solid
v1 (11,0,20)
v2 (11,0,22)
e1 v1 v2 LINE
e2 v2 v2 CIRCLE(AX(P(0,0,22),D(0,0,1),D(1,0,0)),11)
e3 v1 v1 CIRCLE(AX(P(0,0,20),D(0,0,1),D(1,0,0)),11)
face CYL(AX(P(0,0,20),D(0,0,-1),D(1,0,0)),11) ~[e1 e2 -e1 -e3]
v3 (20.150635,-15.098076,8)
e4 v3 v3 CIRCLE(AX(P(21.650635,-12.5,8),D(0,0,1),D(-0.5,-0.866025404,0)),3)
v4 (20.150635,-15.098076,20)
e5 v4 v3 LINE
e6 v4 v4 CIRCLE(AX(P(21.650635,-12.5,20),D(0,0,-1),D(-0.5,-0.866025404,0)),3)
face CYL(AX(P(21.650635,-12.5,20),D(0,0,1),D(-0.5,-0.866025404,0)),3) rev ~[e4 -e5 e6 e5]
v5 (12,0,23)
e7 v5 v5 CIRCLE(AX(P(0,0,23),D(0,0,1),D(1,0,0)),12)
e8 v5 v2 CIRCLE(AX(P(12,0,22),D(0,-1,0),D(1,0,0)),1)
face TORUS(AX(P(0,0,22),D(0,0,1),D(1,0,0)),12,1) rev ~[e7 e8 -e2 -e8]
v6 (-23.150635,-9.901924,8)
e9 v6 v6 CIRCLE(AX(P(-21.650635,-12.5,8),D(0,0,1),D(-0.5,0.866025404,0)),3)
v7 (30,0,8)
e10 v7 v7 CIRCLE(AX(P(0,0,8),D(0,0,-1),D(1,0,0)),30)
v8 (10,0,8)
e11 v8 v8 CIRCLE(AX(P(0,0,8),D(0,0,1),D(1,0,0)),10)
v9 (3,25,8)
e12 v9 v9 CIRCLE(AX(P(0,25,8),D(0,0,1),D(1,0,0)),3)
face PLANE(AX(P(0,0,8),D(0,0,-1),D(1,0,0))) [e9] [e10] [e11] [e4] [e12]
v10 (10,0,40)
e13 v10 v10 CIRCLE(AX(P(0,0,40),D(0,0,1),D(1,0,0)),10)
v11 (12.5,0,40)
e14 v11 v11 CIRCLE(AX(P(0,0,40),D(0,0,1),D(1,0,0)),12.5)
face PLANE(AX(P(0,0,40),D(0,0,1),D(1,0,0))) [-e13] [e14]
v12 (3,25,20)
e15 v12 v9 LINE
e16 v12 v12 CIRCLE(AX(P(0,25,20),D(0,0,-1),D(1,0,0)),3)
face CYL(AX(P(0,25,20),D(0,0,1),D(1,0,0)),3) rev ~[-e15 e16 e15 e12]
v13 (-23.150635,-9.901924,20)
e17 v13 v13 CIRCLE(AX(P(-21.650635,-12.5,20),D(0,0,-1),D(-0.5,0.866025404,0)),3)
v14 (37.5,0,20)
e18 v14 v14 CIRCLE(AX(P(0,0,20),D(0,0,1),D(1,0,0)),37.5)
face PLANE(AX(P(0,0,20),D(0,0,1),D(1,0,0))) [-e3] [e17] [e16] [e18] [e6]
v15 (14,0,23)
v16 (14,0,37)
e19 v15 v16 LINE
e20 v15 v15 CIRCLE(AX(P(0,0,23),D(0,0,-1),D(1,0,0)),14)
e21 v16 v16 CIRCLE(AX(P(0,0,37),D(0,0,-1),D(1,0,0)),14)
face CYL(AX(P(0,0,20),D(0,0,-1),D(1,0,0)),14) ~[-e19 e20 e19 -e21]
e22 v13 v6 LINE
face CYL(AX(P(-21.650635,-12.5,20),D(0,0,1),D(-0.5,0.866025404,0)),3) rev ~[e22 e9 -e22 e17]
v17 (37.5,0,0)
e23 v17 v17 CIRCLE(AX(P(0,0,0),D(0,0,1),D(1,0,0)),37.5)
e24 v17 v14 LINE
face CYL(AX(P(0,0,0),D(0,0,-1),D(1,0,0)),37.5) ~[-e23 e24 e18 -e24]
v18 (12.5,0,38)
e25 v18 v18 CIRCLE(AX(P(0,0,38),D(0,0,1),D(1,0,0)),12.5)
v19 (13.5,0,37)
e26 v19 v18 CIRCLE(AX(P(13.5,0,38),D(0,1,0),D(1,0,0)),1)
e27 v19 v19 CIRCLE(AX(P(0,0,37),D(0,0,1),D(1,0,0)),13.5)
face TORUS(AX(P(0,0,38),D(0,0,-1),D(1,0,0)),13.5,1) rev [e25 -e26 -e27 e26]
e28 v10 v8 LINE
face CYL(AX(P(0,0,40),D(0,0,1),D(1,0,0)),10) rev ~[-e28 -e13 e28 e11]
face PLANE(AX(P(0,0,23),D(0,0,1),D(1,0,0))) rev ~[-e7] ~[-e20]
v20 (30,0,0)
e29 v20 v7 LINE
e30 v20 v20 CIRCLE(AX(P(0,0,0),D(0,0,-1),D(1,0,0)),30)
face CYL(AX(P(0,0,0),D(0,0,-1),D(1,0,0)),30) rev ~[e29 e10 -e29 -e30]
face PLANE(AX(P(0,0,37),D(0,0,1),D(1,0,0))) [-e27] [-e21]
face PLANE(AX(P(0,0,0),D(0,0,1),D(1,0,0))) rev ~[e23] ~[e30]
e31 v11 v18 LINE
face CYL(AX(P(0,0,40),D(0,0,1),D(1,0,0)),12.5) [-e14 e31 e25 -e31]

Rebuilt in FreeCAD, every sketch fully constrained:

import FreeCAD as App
import Part
import Sketcher


def edges_at(feature, points):
    """Names of the edges that pass closest to the given points."""
    edges = feature.Shape.Edges
    near = lambda p: min(range(len(edges)), key=lambda i: edges[i].distToShape(Part.Vertex(*p))[0])
    return sorted({f"Edge{near(p) + 1}" for p in points})

doc = App.newDocument("Part")
params = doc.addObject("Spreadsheet::Sheet", "Params")
for row, (alias, value) in enumerate([
    ("sketch1_diameter", "22 mm"),
    ("pad1_length", "3 mm"),
    ("sketch2_diameter", "75 mm"),
    ("pad2_length", "20 mm"),
    ("sketch3_diameter", "60 mm"),
    ("pocket1_length", "8 mm"),
    ("sketch4_diameter", "6 mm"),
    ("sketch5_diameter", "28 mm"),
    ("pad3_length", "20 mm"),
    ("sketch6_diameter", "20 mm"),
    ("sketch7_diameter", "25 mm"),
    ("pocket4_length", "3 mm"),
    ("fillet_radius", "1 mm"),
    ("fillet2_radius", "1 mm"),
], start=1):
    params.set(f"A{row}", alias)
    params.set(f"B{row}", "=" + value)
    params.setAlias(f"B{row}", alias)

body = doc.addObject("PartDesign::Body", "Body")

sketch1 = body.newObject("Sketcher::SketchObject", "Sketch")
sketch1.AttachmentSupport = (doc.getObject("XY_Plane"), [""])
sketch1.MapMode = "FlatFace"
sketch1.AttachmentOffset = App.Placement(App.Vector(0, 0, 20), App.Rotation())
sketch1.addGeometry([
    Part.Circle(App.Vector(0, 0, 0), App.Vector(0, 0, 1), 24),
    Part.Circle(App.Vector(0, 0, 0), App.Vector(0, 0, 1), 11),
], False)
sketch1.addConstraint([
    Sketcher.Constraint("Coincident", 0, 3, -1, 1),
    Sketcher.Constraint("Coincident", 1, 3, -1, 1),
    Sketcher.Constraint("Diameter", 1, 22.0),
    Sketcher.Constraint("Diameter", 0, 48.83324),
])
sketch1.setExpression("Constraints[2]", "Params.sketch1_diameter")
pad1 = body.newObject("PartDesign::Pad", "Pad")
pad1.Profile = sketch1
pad1.setExpression("Length", "Params.pad1_length")
body2 = doc.addObject("PartDesign::Body", "Body001")

sketch2 = body2.newObject("Sketcher::SketchObject", "Sketch001")
sketch2.AttachmentSupport = (doc.getObject("XY_Plane001"), [""])
sketch2.MapMode = "FlatFace"
sketch2.addGeometry(Part.Circle(App.Vector(0, 0, 0), App.Vector(0, 0, 1), 38), False)
sketch2.addConstraint([
    Sketcher.Constraint("Coincident", 0, 3, -1, 1),
    Sketcher.Constraint("Diameter", 0, 75.0),
])
sketch2.setExpression("Constraints[1]", "Params.sketch2_diameter")
pad2 = body2.newObject("PartDesign::Pad", "Pad001")
pad2.Profile = sketch2
pad2.setExpression("Length", "Params.pad2_length")

sketch3 = body2.newObject("Sketcher::SketchObject", "Sketch002")
sketch3.AttachmentSupport = (doc.getObject("XY_Plane001"), [""])
sketch3.MapMode = "FlatFace"
sketch3.addGeometry(Part.Circle(App.Vector(0, 0, 0), App.Vector(0, 0, 1), 30), False)
sketch3.addConstraint([
    Sketcher.Constraint("Coincident", 0, 3, -1, 1),
    Sketcher.Constraint("Diameter", 0, 60.0),
])
sketch3.setExpression("Constraints[1]", "Params.sketch3_diameter")
pocket1 = body2.newObject("PartDesign::Pocket", "Pocket")
pocket1.Profile = sketch3
pocket1.setExpression("Length", "Params.pocket1_length")
pocket1.Reversed = True

sketch4 = body2.newObject("Sketcher::SketchObject", "Sketch003")
sketch4.AttachmentSupport = (doc.getObject("XY_Plane001"), [""])
sketch4.MapMode = "FlatFace"
sketch4.AttachmentOffset = App.Placement(App.Vector(0, 0, 20), App.Rotation())
sketch4.addGeometry(Part.Circle(App.Vector(0, 25, 0), App.Vector(0, 0, 1), 3), False)
sketch4.addConstraint([
    Sketcher.Constraint("PointOnObject", 0, 3, -2),
    Sketcher.Constraint("Diameter", 0, 6.0),
    Sketcher.Constraint("DistanceY", -1, 1, 0, 3, 25.0),
])
sketch4.setExpression("Constraints[1]", "Params.sketch4_diameter")
pocket2 = body2.newObject("PartDesign::Pocket", "Pocket001")
pocket2.Profile = sketch4
pocket2.Type = "ThroughAll"
doc.recompute()

polarpattern = body2.newObject("PartDesign::PolarPattern", "PolarPattern")
polarpattern.Originals = [pocket2]
polarpattern.Axis = (doc.getObject("Z_Axis001"), [""])
polarpattern.Angle = 360
polarpattern.Occurrences = 3
body2.Tip = polarpattern

sketch5 = body2.newObject("Sketcher::SketchObject", "Sketch004")
sketch5.AttachmentSupport = (doc.getObject("XY_Plane001"), [""])
sketch5.MapMode = "FlatFace"
sketch5.AttachmentOffset = App.Placement(App.Vector(0, 0, 20), App.Rotation())
sketch5.addGeometry(Part.Circle(App.Vector(0, 0, 0), App.Vector(0, 0, 1), 14), False)
sketch5.addConstraint([
    Sketcher.Constraint("Coincident", 0, 3, -1, 1),
    Sketcher.Constraint("Diameter", 0, 28.0),
])
sketch5.setExpression("Constraints[1]", "Params.sketch5_diameter")
pad3 = body2.newObject("PartDesign::Pad", "Pad002")
pad3.Profile = sketch5
pad3.setExpression("Length", "Params.pad3_length")
doc.recompute()

boolean = body2.newObject("PartDesign::Boolean", "Boolean")
boolean.Type = "Cut"
boolean.addObjects([body])

sketch6 = body2.newObject("Sketcher::SketchObject", "Sketch005")
sketch6.AttachmentSupport = (doc.getObject("XY_Plane001"), [""])
sketch6.MapMode = "FlatFace"
sketch6.AttachmentOffset = App.Placement(App.Vector(0, 0, 40), App.Rotation())
sketch6.addGeometry(Part.Circle(App.Vector(0, 0, 0), App.Vector(0, 0, 1), 10), False)
sketch6.addConstraint([
    Sketcher.Constraint("Coincident", 0, 3, -1, 1),
    Sketcher.Constraint("Diameter", 0, 20.0),
])
sketch6.setExpression("Constraints[1]", "Params.sketch6_diameter")
pocket3 = body2.newObject("PartDesign::Pocket", "Pocket002")
pocket3.Profile = sketch6
pocket3.Type = "ThroughAll"

sketch7 = body2.newObject("Sketcher::SketchObject", "Sketch006")
sketch7.AttachmentSupport = (doc.getObject("XY_Plane001"), [""])
sketch7.MapMode = "FlatFace"
sketch7.AttachmentOffset = App.Placement(App.Vector(0, 0, 40), App.Rotation())
sketch7.addGeometry([
    Part.Circle(App.Vector(0, 0, 0), App.Vector(0, 0, 1), 21),
    Part.Circle(App.Vector(0, 0, 0), App.Vector(0, 0, 1), 12),
], False)
sketch7.addConstraint([
    Sketcher.Constraint("Coincident", 0, 3, -1, 1),
    Sketcher.Constraint("Coincident", 1, 3, -1, 1),
    Sketcher.Constraint("Diameter", 1, 25.0),
    Sketcher.Constraint("Diameter", 0, 41.312458),
])
sketch7.setExpression("Constraints[2]", "Params.sketch7_diameter")
pocket4 = body2.newObject("PartDesign::Pocket", "Pocket003")
pocket4.Profile = sketch7
pocket4.setExpression("Length", "Params.pocket4_length")
doc.recompute()

fillet = body2.newObject("PartDesign::Fillet", "Fillet")
fillet.Base = (pocket4, edges_at(pocket4, [(-12.5, 0, 37)]))
fillet.setExpression("Radius", "Params.fillet_radius")
doc.recompute()

fillet2 = body2.newObject("PartDesign::Fillet", "Fillet001")
fillet2.Base = (fillet, edges_at(fillet, [(-11, 0, 23)]))
fillet2.setExpression("Radius", "Params.fillet2_radius")

doc.recompute()
